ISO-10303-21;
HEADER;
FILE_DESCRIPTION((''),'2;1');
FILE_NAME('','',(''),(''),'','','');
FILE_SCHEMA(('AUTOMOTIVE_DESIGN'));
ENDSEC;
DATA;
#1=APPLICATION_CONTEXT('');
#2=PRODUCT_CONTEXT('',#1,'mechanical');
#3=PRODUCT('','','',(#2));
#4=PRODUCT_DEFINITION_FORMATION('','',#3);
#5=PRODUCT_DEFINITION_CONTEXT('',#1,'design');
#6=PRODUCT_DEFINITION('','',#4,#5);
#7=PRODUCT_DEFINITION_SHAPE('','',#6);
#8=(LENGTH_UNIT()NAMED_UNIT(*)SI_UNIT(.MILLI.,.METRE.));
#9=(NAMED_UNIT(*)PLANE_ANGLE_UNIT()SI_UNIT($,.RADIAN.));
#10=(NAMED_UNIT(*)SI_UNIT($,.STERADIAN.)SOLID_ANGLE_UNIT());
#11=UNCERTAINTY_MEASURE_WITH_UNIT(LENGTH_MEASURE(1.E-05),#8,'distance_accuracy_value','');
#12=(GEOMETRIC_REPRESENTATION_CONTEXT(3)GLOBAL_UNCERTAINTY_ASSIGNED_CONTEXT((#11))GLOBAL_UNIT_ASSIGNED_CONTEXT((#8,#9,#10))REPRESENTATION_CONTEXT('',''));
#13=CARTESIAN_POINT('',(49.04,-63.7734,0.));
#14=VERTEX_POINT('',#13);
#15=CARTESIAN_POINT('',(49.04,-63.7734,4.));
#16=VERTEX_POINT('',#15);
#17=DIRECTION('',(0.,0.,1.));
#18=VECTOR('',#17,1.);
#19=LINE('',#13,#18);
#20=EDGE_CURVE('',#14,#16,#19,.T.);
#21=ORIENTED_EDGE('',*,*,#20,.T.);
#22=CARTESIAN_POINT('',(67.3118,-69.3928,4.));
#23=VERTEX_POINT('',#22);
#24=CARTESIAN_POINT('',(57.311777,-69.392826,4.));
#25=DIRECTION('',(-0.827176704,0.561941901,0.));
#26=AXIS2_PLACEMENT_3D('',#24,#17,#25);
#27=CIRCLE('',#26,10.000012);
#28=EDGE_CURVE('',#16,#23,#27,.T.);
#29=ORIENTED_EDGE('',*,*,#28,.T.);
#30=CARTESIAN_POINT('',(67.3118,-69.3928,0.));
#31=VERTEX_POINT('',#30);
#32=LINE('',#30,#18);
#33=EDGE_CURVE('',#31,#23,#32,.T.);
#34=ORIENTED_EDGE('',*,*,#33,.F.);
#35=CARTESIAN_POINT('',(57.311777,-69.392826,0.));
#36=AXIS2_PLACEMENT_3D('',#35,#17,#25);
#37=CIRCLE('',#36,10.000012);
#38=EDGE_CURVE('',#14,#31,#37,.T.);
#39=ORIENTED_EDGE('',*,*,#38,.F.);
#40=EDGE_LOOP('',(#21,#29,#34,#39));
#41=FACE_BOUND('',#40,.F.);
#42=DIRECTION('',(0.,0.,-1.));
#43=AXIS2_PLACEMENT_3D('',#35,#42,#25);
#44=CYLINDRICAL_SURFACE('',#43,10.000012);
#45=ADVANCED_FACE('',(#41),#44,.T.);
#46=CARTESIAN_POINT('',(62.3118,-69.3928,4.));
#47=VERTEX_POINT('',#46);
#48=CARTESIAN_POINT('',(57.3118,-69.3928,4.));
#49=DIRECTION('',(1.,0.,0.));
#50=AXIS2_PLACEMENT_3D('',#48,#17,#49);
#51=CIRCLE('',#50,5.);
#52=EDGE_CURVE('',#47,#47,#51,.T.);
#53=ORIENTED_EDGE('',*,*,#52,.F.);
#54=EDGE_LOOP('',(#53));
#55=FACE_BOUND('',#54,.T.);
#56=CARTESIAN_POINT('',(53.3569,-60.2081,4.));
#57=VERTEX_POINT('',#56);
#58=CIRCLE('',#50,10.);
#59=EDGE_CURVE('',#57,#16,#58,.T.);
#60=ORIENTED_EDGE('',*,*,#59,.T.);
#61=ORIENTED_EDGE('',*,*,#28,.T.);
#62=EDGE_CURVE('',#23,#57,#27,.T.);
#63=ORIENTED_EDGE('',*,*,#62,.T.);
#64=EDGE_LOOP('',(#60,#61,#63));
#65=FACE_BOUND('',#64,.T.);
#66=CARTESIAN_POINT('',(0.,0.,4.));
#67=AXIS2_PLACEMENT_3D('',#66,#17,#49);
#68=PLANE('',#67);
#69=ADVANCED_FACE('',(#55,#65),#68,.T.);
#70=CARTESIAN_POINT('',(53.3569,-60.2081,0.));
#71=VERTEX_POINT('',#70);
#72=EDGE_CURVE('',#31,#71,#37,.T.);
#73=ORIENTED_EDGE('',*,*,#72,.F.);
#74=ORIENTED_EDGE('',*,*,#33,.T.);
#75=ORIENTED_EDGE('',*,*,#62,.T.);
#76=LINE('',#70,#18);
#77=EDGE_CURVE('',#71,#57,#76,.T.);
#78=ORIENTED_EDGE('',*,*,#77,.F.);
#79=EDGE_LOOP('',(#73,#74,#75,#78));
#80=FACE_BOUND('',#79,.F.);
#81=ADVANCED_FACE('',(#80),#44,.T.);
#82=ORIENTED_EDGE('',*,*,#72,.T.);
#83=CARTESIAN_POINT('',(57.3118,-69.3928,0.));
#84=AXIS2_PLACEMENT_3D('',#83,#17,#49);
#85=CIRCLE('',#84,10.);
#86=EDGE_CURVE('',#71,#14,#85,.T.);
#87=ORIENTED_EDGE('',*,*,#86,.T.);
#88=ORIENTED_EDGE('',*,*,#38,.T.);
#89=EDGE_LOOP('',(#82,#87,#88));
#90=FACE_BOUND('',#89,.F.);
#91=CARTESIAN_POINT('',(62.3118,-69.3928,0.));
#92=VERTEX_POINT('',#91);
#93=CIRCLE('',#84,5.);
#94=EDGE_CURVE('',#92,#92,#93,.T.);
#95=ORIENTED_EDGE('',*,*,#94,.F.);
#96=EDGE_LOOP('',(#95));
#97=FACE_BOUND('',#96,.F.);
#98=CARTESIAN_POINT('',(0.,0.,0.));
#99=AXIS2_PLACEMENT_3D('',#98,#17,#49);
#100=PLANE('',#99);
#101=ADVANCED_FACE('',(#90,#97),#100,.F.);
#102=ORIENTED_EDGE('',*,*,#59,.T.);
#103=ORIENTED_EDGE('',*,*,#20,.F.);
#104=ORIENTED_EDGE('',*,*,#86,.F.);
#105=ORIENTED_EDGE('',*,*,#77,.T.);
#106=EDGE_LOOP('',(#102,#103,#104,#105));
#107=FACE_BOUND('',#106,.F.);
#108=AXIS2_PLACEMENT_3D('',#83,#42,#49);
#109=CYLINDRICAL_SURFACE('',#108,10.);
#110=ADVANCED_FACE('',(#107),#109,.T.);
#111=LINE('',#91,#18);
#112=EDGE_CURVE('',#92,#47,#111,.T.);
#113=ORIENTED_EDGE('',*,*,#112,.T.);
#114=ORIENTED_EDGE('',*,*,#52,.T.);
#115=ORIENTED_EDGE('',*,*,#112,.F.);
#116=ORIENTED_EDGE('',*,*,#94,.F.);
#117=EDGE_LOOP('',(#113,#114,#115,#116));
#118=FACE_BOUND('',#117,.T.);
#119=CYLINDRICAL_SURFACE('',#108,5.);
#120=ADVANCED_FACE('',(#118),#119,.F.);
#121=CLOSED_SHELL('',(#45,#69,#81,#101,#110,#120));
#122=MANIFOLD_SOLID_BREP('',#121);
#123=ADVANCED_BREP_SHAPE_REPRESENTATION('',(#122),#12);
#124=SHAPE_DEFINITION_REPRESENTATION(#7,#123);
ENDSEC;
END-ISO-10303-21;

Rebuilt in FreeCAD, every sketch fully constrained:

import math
import FreeCAD as App
import Part
import Sketcher

V = App.Vector

doc = App.newDocument("Part")
body = doc.addObject("PartDesign::Body", "Body")

sketch1 = body.newObject("Sketcher::SketchObject", "Sketch")
sketch1.AttachmentSupport = (doc.getObject("XY_Plane"), [""])
sketch1.MapMode = "FlatFace"
sketch1.addGeometry([
    Part.ArcOfCircle(Part.Circle(V(57, -69, 0), V(0, 0, 1), 10), math.radians(113), math.radians(146)),
    Part.ArcOfCircle(Part.Circle(V(57, -69, 0), V(0, 0, 1), 10), math.radians(146), math.radians(473)),
    Part.Circle(V(57, -69, 0), V(0, 0, 1), 5),
], False)
sketch1.addConstraint([
    Sketcher.Constraint("Tangent", 0, 1, 1, 2),
    Sketcher.Constraint("Coincident", 1, 1, 0, 2),
    Sketcher.Constraint("Coincident", 2, 3, 0, 3),
    Sketcher.Constraint("Diameter", 2, 10.0),
    Sketcher.Constraint("Radius", 0, 10.0),
    Sketcher.Constraint("DistanceX", -1, 1, 1, 1, 49.04),
    Sketcher.Constraint("DistanceX", -1, 1, 0, 1, 53.357),
    Sketcher.Constraint("DistanceY", 0, 1, -1, 1, 60.208),
    Sketcher.Constraint("DistanceX", 0, 1, 0, 3, 3.955),
])
pad1 = body.newObject("PartDesign::Pad", "Pad")
pad1.Profile = sketch1
pad1.Length = 4

doc.recompute()
